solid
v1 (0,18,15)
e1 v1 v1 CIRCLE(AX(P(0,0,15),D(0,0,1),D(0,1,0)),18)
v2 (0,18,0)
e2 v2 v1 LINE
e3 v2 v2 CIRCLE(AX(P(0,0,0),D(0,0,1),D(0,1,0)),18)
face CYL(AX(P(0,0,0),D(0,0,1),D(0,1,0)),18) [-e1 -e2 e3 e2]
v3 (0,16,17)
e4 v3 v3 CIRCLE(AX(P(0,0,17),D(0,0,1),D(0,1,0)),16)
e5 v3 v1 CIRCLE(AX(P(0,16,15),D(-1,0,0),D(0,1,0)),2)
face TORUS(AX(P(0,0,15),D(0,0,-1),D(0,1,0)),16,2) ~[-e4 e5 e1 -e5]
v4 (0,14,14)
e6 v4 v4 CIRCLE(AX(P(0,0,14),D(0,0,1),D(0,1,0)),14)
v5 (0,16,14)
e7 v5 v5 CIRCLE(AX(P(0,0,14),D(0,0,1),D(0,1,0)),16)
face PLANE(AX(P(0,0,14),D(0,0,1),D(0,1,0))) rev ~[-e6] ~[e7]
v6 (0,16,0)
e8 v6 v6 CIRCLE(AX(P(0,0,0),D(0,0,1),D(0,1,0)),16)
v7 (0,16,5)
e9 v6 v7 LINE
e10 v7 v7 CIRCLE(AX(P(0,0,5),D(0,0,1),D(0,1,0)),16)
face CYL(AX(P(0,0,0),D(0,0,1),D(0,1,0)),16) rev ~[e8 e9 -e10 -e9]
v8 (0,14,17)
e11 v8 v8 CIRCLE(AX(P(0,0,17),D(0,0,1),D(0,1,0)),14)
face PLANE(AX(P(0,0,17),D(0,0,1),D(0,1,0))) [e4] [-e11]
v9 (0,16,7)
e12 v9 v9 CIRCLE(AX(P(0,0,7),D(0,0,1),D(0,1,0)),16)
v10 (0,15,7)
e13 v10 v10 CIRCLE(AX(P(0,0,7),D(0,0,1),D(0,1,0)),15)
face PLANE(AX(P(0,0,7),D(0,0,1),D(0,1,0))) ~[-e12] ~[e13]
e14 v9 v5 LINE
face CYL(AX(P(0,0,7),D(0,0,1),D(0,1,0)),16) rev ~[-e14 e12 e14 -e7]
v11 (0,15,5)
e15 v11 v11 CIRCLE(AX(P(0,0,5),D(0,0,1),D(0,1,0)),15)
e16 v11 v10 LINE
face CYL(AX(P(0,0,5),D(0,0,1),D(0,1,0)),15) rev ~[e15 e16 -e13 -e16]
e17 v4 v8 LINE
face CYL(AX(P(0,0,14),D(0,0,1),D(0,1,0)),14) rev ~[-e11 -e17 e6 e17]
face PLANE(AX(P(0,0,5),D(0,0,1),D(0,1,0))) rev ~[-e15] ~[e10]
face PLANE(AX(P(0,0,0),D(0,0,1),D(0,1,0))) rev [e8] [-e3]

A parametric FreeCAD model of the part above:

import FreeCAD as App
import Part
import Sketcher


def edges_at(feature, points):
    """Names of the edges that pass closest to the given points."""
    edges = feature.Shape.Edges
    near = lambda p: min(range(len(edges)), key=lambda i: edges[i].distToShape(Part.Vertex(*p))[0])
    return sorted({f"Edge{near(p) + 1}" for p in points})


def add_polygon(sketch, points):
    """Adds a closed chain of lines whose ends are joined by coincident constraints."""
    first, n = sketch.GeometryCount, len(points)
    for a, b in zip(points, points[1:] + points[:1]):
        sketch.addGeometry(Part.LineSegment(App.Vector(*a, 0), App.Vector(*b, 0)), False)
    for i in range(n):
        sketch.addConstraint(Sketcher.Constraint("Coincident", first + i, 2, first + (i + 1) % n, 1))

doc = App.newDocument("Part")
params = doc.addObject("Spreadsheet::Sheet", "Params")
for row, (alias, value) in enumerate([
    ("sketch1_width", "2 mm"),
    ("sketch1_width2", "1 mm"),
    ("sketch1_height", "5 mm"),
    ("sketch1_height2", "3 mm"),
    ("sketch1_height3", "7 mm"),
    ("revolution_angle", "360 deg"),
    ("fillet_radius", "2 mm"),
], start=1):
    params.set(f"A{row}", alias)
    params.set(f"B{row}", "=" + value)
    params.setAlias(f"B{row}", alias)

body = doc.addObject("PartDesign::Body", "Body")

# Sketch on YZ plane
sketch1 = body.newObject("Sketcher::SketchObject", "Sketch")
sketch1.AttachmentSupport = (doc.getObject("YZ_Plane"), [""])
sketch1.MapMode = "FlatFace"
add_polygon(sketch1, [(16, 5), (16, 0), (18, 0), (18, 17), (14, 17), (14, 14), (16, 14), (16, 7), (15, 7), (15, 5)])  # lines 0-9
sketch1.addConstraint([
    Sketcher.Constraint("Vertical", 0),
    Sketcher.Constraint("Horizontal", 1),
    Sketcher.Constraint("Vertical", 2),
    Sketcher.Constraint("Horizontal", 3),
    Sketcher.Constraint("Vertical", 4),
    Sketcher.Constraint("Horizontal", 5),
    Sketcher.Constraint("Vertical", 6),
    Sketcher.Constraint("Horizontal", 7),
    Sketcher.Constraint("Vertical", 8),
    Sketcher.Constraint("Horizontal", 9),
    Sketcher.Constraint("PointOnObject", 0, 2, -1),
    Sketcher.Constraint("Vertical", 0, 2, 5, 2),
    Sketcher.Constraint("Equal", 1, 5),
    Sketcher.Constraint("Equal", 5, 8),
    Sketcher.Constraint("DistanceX", 1, 1, 1, 2, 2.0),
    Sketcher.Constraint("DistanceX", 7, 2, 7, 1, 1.0),
    Sketcher.Constraint("DistanceY", 0, 2, 0, 1, 5.0),
    Sketcher.Constraint("DistanceY", 4, 2, 4, 1, 3.0),
    Sketcher.Constraint("DistanceY", 6, 2, 6, 1, 7.0),
    Sketcher.Constraint("DistanceX", -1, 1, 0, 2, 16.0),
])
sketch1.setExpression("Constraints[24]", "Params.sketch1_width")
sketch1.setExpression("Constraints[25]", "Params.sketch1_width2")
sketch1.setExpression("Constraints[26]", "Params.sketch1_height")
sketch1.setExpression("Constraints[27]", "Params.sketch1_height2")
sketch1.setExpression("Constraints[28]", "Params.sketch1_height3")
revolution = body.newObject("PartDesign::Revolution", "Revolution")
revolution.Profile = sketch1
revolution.ReferenceAxis = (sketch1, ["V_Axis"])
revolution.setExpression("Angle", "Params.revolution_angle")
doc.recompute()

fillet = body.newObject("PartDesign::Fillet", "Fillet")
fillet.Base = (revolution, edges_at(revolution, [(0, -18, 17)]))
fillet.setExpression("Radius", "Params.fillet_radius")

doc.recompute()
